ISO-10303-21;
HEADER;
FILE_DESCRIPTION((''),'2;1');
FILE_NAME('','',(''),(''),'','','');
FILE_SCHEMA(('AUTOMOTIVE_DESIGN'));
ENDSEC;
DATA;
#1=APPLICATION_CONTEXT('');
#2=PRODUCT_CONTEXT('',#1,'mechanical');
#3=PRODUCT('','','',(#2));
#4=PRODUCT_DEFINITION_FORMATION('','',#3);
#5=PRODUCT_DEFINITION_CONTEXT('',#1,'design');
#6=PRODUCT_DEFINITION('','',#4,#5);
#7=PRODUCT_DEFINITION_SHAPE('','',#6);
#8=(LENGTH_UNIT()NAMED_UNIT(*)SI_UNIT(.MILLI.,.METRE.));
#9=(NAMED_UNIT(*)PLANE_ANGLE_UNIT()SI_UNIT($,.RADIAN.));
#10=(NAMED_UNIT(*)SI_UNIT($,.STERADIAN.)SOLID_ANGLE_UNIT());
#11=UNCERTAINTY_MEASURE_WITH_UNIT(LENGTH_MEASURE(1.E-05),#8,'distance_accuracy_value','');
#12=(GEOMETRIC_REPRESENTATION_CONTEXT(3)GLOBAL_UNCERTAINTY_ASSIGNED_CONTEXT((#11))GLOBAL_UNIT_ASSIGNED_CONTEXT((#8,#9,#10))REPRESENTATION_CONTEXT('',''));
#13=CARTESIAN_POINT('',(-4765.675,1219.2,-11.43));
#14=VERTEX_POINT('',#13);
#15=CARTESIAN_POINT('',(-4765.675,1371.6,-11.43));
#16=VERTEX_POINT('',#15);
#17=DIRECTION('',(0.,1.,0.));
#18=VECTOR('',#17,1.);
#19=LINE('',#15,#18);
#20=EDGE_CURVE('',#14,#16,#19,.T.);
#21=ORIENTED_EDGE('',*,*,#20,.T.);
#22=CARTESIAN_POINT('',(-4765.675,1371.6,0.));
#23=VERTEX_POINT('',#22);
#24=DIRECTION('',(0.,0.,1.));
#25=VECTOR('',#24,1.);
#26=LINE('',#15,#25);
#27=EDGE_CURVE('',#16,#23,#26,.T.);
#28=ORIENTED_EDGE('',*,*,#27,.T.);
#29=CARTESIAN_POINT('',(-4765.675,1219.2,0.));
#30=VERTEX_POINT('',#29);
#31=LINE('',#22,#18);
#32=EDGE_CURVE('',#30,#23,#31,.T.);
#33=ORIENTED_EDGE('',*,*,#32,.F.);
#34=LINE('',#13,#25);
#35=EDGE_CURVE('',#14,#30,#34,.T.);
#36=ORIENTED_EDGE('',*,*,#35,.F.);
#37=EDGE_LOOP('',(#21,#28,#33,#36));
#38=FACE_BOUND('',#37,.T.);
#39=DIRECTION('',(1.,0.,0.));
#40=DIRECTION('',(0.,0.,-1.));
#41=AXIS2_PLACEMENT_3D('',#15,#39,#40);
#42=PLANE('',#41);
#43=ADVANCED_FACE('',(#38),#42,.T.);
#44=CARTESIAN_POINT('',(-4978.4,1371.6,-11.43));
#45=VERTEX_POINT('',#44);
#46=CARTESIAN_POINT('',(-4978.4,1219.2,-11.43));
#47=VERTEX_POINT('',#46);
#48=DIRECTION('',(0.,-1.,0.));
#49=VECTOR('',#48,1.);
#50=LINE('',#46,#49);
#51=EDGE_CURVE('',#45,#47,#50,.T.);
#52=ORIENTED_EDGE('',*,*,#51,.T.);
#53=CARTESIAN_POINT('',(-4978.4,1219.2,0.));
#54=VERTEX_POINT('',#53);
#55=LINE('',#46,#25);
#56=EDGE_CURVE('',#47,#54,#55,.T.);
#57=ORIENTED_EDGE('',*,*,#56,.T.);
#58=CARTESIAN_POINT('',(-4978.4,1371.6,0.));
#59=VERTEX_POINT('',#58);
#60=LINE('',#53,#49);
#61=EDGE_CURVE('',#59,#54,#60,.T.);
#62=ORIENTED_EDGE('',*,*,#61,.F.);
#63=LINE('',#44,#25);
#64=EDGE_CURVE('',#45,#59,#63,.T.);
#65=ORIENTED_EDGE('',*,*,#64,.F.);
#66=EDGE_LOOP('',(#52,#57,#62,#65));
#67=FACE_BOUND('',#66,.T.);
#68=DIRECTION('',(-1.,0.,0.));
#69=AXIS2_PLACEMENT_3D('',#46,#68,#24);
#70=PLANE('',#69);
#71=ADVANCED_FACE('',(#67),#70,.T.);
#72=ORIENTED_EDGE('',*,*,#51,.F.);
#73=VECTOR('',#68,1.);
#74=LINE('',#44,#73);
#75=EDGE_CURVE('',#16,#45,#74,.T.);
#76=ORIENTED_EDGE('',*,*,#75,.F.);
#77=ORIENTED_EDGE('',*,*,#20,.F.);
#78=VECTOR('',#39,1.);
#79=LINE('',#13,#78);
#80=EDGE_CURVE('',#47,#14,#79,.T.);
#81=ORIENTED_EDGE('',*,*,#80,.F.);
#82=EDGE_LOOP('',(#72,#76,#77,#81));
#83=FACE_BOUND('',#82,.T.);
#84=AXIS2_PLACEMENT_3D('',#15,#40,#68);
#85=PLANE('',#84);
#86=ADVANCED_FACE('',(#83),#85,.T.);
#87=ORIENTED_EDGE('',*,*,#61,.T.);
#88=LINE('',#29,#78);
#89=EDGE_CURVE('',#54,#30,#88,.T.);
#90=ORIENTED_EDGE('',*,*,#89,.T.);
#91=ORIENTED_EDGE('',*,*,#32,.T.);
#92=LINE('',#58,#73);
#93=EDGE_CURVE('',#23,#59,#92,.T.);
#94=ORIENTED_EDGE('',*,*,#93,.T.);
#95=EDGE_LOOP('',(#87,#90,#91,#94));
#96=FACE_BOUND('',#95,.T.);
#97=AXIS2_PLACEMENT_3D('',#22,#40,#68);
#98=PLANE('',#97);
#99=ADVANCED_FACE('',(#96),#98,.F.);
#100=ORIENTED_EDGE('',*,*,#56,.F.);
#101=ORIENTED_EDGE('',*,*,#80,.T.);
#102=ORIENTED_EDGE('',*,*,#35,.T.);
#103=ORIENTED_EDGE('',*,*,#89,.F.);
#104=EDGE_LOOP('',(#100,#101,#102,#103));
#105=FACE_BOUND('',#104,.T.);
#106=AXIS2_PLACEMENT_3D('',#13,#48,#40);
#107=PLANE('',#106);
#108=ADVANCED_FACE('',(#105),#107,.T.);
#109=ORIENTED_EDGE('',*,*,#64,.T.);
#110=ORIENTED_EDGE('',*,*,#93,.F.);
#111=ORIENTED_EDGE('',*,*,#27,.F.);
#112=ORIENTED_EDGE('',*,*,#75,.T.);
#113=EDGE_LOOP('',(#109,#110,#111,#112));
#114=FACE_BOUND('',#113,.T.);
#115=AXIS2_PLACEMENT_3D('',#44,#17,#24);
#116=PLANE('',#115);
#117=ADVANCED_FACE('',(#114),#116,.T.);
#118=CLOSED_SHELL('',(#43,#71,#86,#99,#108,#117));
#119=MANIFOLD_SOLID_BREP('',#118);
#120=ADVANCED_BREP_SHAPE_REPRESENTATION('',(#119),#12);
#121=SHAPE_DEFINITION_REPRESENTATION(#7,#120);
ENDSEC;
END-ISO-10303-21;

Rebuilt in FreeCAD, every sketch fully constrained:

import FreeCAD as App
import Part
import Sketcher
from FreeCAD import Vector
Q = App.Units.Quantity


def add_polygon(sketch, points):
    """Adds a closed chain of lines whose ends are joined by coincident constraints."""
    first, n = sketch.GeometryCount, len(points)
    for a, b in zip(points, points[1:] + points[:1]):
        sketch.addGeometry(Part.LineSegment(App.Vector(*a, 0), App.Vector(*b, 0)), False)
    for i in range(n):
        sketch.addConstraint(Sketcher.Constraint("Coincident", first + i, 2, first + (i + 1) % n, 1))

doc = App.newDocument("Part")
body = doc.addObject("PartDesign::Body", "Body")

# Sketch on XY plane
sketch1 = doc.addObject("Sketcher::SketchObject", "Sketch")
body.addObject(sketch1)
sketch1.AttachmentSupport = (doc.XY_Plane, [""])
sketch1.MapMode = "FlatFace"
add_polygon(sketch1, [(-4978, 1372), (-4978, 1219), (-4766, 1219), (-4766, 1372)])  # lines 0-3
sketch1.addConstraint([
    Sketcher.Constraint("Vertical", 0),
    Sketcher.Constraint("Horizontal", 1),
    Sketcher.Constraint("Vertical", 2),
    Sketcher.Constraint("Horizontal", 3),
    Sketcher.Constraint("DistanceY", 0, 2, 0, 1, Q("6 in")),
    Sketcher.Constraint("DistanceX", 0, 2, -1, 1, Q("196 in")),
    Sketcher.Constraint("DistanceY", -1, 1, 0, 2, Q("48 in")),
    Sketcher.Constraint("DistanceX", 1, 1, 1, 2, Q("8.375 in")),
])
pad1 = doc.addObject("PartDesign::Pad", "Pad")
body.addObject(pad1)
pad1.Profile = sketch1
pad1.Length = Q("0.45 in")
pad1.Reversed = True

doc.recompute()
